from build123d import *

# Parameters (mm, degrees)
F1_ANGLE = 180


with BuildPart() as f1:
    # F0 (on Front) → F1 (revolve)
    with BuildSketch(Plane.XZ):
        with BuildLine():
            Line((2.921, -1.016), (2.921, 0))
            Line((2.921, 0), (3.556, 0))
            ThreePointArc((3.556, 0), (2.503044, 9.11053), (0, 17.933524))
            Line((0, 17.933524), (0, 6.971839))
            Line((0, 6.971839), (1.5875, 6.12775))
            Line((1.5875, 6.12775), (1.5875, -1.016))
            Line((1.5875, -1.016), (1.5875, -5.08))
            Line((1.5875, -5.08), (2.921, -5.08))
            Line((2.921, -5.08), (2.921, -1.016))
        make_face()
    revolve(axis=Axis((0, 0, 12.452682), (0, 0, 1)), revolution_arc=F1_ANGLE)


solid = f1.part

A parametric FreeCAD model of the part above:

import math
import FreeCAD as App
import Part
import Sketcher
from FreeCAD import Vector
Q = App.Units.Quantity

doc = App.newDocument("Part")
body = doc.addObject("PartDesign::Body", "Body")

sketch1 = body.newObject("Sketcher::SketchObject", "Sketch")
sketch1.AttachmentSupport = (doc.getObject("XZ_Plane"), [""])
sketch1.MapMode = "FlatFace"
sketch1.addGeometry([
    Part.LineSegment(Vector(2.921, 0, 0), Vector(3.556, 0, 0)),
    Part.ArcOfCircle(Part.Circle(Vector(-53.306326, -1.955791, 0), Vector(0, 0, 1), 56.895951), math.radians(1.969923), math.radians(20.461229)),
    Part.LineSegment(Vector(0, 17.933524, 0), Vector(0, 6.971839, 0)),
    Part.LineSegment(Vector(0, 6.971839, 0), Vector(1.5875, 6.12775, 0)),
    Part.LineSegment(Vector(1.5875, 6.12775, 0), Vector(1.5875, -5.08, 0)),
    Part.LineSegment(Vector(1.5875, -5.08, 0), Vector(2.921, -5.08, 0)),
    Part.LineSegment(Vector(2.921, -5.08, 0), Vector(2.921, 0, 0)),
], False)
sketch1.addConstraint([
    Sketcher.Constraint("Coincident", 0, 2, 1, 1),
    Sketcher.Constraint("Coincident", 1, 2, 2, 1),
    Sketcher.Constraint("Coincident", 2, 2, 3, 1),
    Sketcher.Constraint("Coincident", 3, 2, 4, 1),
    Sketcher.Constraint("Coincident", 4, 2, 5, 1),
    Sketcher.Constraint("Coincident", 5, 2, 6, 1),
    Sketcher.Constraint("Coincident", 6, 2, 0, 1),
    Sketcher.Constraint("Horizontal", 0),
    Sketcher.Constraint("Vertical", 2),
    Sketcher.Constraint("Vertical", 4),
    Sketcher.Constraint("Horizontal", 5),
    Sketcher.Constraint("Vertical", 6),
    Sketcher.Constraint("PointOnObject", 0, 2, -1),
    Sketcher.Constraint("PointOnObject", 1, 2, -2),
    Sketcher.Constraint("DistanceY", 6, 1, 6, 2, Q("0.2 in")),
    Sketcher.Constraint("Angle", 3, Q("-28.000008 deg")),
    Sketcher.Constraint("DistanceX", 0, 1, 0, 2, Q("0.025 in")),
    Sketcher.Constraint("DistanceX", -1, 1, 0, 2, Q("0.14 in")),
    Sketcher.Constraint("DistanceX", 5, 1, 5, 2, Q("0.0525 in")),
    Sketcher.Constraint("Radius", 1, Q("56.895951 mm")),
    Sketcher.Constraint("DistanceY", 4, 2, 4, 1, Q("11.20775 mm")),
    Sketcher.Constraint("DistanceY", 2, 2, 2, 1, Q("10.961685 mm")),
])
revolution = body.newObject("PartDesign::Revolution", "Revolution")
revolution.Profile = sketch1
revolution.ReferenceAxis = (sketch1, ["V_Axis"])
revolution.Angle = 180

doc.recompute()
